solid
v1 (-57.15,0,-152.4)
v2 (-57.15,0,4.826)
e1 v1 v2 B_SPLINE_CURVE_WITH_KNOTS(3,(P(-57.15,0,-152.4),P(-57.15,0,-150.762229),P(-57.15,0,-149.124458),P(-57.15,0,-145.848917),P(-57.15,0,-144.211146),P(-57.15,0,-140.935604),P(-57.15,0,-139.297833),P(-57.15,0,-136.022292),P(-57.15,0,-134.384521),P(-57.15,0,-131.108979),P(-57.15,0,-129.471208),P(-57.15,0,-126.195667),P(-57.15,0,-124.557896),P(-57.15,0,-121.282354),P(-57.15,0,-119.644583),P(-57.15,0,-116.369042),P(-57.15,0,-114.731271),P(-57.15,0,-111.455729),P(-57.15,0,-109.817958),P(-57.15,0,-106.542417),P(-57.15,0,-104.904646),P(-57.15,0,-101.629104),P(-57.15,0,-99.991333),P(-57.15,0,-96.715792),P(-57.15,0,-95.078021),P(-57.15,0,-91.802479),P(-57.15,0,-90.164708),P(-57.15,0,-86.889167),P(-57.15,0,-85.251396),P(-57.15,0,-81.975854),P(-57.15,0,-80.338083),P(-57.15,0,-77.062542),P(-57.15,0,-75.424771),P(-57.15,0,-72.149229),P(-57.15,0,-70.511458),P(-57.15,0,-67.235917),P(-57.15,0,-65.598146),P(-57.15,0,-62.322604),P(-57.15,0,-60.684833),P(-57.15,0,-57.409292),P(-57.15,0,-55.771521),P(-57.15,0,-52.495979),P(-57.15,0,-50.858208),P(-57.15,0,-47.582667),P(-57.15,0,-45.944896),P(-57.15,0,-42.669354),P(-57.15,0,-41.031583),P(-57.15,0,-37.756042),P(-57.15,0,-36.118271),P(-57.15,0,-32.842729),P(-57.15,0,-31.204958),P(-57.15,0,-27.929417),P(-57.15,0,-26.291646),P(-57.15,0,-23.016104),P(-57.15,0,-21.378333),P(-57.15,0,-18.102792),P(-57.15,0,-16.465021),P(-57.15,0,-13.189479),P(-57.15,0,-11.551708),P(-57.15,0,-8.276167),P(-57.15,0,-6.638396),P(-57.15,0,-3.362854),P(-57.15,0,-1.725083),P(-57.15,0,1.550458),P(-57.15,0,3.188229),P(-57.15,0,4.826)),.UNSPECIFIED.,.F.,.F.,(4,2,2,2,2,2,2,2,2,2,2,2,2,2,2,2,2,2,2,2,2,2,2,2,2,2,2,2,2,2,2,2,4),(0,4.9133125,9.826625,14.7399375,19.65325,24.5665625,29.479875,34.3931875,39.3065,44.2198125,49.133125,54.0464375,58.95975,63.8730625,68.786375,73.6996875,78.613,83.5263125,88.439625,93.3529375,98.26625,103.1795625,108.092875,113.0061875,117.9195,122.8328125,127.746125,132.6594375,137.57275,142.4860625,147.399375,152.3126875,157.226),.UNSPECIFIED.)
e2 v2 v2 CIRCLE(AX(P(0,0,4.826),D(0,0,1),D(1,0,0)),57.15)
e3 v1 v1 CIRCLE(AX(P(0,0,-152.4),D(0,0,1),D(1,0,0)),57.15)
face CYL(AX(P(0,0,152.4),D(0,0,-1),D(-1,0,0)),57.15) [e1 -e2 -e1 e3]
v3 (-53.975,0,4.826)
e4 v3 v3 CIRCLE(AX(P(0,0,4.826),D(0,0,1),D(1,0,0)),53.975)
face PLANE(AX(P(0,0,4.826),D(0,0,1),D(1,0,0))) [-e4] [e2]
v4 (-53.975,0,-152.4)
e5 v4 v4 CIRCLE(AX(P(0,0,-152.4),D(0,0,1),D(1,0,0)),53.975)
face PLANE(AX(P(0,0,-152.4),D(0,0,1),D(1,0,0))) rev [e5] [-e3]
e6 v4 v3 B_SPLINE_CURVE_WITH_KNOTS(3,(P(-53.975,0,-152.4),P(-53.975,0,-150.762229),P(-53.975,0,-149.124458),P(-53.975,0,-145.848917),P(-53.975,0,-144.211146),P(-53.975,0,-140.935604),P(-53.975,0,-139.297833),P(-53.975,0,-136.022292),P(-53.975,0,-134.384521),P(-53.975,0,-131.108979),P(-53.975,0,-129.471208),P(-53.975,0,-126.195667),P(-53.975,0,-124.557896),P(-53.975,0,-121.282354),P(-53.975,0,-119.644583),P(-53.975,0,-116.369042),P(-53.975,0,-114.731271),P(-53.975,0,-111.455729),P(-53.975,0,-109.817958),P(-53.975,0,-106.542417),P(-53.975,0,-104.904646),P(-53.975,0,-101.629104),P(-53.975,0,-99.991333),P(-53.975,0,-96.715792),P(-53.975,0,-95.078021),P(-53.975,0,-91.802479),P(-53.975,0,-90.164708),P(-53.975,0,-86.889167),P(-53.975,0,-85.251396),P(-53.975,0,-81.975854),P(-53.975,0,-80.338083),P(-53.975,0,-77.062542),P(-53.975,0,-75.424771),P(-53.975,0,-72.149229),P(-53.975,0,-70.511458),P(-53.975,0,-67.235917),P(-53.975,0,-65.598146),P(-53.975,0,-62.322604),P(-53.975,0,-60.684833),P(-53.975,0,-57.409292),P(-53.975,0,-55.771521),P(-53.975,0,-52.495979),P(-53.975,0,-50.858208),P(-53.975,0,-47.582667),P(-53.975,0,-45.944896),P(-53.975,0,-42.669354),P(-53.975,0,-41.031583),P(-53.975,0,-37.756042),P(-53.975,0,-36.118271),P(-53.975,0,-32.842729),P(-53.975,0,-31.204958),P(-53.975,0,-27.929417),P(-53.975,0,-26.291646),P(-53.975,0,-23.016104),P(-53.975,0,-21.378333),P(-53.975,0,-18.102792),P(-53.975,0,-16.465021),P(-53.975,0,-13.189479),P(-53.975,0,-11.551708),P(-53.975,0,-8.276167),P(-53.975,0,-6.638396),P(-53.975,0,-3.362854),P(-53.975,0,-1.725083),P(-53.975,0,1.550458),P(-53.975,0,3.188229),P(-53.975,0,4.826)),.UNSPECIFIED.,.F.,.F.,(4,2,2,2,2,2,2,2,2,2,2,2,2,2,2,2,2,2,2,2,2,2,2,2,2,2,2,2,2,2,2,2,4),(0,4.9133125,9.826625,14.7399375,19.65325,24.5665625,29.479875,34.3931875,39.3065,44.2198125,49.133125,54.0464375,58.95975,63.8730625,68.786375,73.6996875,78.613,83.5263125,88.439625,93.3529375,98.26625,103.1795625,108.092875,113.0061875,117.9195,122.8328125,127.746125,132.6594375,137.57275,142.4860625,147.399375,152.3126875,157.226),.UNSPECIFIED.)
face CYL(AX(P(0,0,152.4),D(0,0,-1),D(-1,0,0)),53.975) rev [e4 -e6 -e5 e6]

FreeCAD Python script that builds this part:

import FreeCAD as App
import Part
import Sketcher
from FreeCAD import Vector
Q = App.Units.Quantity

doc = App.newDocument("Part")
body = doc.addObject("PartDesign::Body", "Body")

# Sketch on XY plane
sketch1 = body.newObject("Sketcher::SketchObject", "Sketch")
sketch1.AttachmentSupport = (doc.getObject("XY_Plane"), [""])
sketch1.MapMode = "FlatFace"
sketch1.addGeometry([
    Part.Circle(Vector(0, 0, 0), Vector(0, 0, 1), 57.15),
    Part.Circle(Vector(0, 0, 0), Vector(0, 0, 1), 53.975),
], False)
sketch1.addConstraint([
    Sketcher.Constraint("Coincident", 0, 3, -1, 1),
    Sketcher.Constraint("Coincident", 1, 3, -1, 1),
    Sketcher.Constraint("Diameter", 0, Q("4.5 in")),
    Sketcher.Constraint("Diameter", 1, Q("4.25 in")),
])
pad1 = body.newObject("PartDesign::Pad", "Pad")
pad1.Profile = sketch1
pad1.Type = "TwoLengths"
pad1.Length = Q("6 in")
pad1.Length2 = Q("6 in")

# Sketch on XY plane
sketch2 = body.newObject("Sketcher::SketchObject", "Sketch001")
sketch2.AttachmentSupport = (doc.getObject("XY_Plane"), [""])
sketch2.MapMode = "FlatFace"
sketch2.AttachmentOffset = App.Placement(Vector(0, 0, 6 * 25.4), App.Rotation())
sketch2.addGeometry(Part.Circle(Vector(0, 0, 0), Vector(0, 0, 1), 72.477343), False)
sketch2.addConstraint([
    Sketcher.Constraint("Coincident", 0, 3, -1, 1),
    Sketcher.Constraint("Diameter", 0, Q("144.954686 mm")),
])
pocket1 = body.newObject("PartDesign::Pocket", "Pocket")
pocket1.Profile = sketch2
pocket1.Length = Q("5.81 in")

doc.recompute()
